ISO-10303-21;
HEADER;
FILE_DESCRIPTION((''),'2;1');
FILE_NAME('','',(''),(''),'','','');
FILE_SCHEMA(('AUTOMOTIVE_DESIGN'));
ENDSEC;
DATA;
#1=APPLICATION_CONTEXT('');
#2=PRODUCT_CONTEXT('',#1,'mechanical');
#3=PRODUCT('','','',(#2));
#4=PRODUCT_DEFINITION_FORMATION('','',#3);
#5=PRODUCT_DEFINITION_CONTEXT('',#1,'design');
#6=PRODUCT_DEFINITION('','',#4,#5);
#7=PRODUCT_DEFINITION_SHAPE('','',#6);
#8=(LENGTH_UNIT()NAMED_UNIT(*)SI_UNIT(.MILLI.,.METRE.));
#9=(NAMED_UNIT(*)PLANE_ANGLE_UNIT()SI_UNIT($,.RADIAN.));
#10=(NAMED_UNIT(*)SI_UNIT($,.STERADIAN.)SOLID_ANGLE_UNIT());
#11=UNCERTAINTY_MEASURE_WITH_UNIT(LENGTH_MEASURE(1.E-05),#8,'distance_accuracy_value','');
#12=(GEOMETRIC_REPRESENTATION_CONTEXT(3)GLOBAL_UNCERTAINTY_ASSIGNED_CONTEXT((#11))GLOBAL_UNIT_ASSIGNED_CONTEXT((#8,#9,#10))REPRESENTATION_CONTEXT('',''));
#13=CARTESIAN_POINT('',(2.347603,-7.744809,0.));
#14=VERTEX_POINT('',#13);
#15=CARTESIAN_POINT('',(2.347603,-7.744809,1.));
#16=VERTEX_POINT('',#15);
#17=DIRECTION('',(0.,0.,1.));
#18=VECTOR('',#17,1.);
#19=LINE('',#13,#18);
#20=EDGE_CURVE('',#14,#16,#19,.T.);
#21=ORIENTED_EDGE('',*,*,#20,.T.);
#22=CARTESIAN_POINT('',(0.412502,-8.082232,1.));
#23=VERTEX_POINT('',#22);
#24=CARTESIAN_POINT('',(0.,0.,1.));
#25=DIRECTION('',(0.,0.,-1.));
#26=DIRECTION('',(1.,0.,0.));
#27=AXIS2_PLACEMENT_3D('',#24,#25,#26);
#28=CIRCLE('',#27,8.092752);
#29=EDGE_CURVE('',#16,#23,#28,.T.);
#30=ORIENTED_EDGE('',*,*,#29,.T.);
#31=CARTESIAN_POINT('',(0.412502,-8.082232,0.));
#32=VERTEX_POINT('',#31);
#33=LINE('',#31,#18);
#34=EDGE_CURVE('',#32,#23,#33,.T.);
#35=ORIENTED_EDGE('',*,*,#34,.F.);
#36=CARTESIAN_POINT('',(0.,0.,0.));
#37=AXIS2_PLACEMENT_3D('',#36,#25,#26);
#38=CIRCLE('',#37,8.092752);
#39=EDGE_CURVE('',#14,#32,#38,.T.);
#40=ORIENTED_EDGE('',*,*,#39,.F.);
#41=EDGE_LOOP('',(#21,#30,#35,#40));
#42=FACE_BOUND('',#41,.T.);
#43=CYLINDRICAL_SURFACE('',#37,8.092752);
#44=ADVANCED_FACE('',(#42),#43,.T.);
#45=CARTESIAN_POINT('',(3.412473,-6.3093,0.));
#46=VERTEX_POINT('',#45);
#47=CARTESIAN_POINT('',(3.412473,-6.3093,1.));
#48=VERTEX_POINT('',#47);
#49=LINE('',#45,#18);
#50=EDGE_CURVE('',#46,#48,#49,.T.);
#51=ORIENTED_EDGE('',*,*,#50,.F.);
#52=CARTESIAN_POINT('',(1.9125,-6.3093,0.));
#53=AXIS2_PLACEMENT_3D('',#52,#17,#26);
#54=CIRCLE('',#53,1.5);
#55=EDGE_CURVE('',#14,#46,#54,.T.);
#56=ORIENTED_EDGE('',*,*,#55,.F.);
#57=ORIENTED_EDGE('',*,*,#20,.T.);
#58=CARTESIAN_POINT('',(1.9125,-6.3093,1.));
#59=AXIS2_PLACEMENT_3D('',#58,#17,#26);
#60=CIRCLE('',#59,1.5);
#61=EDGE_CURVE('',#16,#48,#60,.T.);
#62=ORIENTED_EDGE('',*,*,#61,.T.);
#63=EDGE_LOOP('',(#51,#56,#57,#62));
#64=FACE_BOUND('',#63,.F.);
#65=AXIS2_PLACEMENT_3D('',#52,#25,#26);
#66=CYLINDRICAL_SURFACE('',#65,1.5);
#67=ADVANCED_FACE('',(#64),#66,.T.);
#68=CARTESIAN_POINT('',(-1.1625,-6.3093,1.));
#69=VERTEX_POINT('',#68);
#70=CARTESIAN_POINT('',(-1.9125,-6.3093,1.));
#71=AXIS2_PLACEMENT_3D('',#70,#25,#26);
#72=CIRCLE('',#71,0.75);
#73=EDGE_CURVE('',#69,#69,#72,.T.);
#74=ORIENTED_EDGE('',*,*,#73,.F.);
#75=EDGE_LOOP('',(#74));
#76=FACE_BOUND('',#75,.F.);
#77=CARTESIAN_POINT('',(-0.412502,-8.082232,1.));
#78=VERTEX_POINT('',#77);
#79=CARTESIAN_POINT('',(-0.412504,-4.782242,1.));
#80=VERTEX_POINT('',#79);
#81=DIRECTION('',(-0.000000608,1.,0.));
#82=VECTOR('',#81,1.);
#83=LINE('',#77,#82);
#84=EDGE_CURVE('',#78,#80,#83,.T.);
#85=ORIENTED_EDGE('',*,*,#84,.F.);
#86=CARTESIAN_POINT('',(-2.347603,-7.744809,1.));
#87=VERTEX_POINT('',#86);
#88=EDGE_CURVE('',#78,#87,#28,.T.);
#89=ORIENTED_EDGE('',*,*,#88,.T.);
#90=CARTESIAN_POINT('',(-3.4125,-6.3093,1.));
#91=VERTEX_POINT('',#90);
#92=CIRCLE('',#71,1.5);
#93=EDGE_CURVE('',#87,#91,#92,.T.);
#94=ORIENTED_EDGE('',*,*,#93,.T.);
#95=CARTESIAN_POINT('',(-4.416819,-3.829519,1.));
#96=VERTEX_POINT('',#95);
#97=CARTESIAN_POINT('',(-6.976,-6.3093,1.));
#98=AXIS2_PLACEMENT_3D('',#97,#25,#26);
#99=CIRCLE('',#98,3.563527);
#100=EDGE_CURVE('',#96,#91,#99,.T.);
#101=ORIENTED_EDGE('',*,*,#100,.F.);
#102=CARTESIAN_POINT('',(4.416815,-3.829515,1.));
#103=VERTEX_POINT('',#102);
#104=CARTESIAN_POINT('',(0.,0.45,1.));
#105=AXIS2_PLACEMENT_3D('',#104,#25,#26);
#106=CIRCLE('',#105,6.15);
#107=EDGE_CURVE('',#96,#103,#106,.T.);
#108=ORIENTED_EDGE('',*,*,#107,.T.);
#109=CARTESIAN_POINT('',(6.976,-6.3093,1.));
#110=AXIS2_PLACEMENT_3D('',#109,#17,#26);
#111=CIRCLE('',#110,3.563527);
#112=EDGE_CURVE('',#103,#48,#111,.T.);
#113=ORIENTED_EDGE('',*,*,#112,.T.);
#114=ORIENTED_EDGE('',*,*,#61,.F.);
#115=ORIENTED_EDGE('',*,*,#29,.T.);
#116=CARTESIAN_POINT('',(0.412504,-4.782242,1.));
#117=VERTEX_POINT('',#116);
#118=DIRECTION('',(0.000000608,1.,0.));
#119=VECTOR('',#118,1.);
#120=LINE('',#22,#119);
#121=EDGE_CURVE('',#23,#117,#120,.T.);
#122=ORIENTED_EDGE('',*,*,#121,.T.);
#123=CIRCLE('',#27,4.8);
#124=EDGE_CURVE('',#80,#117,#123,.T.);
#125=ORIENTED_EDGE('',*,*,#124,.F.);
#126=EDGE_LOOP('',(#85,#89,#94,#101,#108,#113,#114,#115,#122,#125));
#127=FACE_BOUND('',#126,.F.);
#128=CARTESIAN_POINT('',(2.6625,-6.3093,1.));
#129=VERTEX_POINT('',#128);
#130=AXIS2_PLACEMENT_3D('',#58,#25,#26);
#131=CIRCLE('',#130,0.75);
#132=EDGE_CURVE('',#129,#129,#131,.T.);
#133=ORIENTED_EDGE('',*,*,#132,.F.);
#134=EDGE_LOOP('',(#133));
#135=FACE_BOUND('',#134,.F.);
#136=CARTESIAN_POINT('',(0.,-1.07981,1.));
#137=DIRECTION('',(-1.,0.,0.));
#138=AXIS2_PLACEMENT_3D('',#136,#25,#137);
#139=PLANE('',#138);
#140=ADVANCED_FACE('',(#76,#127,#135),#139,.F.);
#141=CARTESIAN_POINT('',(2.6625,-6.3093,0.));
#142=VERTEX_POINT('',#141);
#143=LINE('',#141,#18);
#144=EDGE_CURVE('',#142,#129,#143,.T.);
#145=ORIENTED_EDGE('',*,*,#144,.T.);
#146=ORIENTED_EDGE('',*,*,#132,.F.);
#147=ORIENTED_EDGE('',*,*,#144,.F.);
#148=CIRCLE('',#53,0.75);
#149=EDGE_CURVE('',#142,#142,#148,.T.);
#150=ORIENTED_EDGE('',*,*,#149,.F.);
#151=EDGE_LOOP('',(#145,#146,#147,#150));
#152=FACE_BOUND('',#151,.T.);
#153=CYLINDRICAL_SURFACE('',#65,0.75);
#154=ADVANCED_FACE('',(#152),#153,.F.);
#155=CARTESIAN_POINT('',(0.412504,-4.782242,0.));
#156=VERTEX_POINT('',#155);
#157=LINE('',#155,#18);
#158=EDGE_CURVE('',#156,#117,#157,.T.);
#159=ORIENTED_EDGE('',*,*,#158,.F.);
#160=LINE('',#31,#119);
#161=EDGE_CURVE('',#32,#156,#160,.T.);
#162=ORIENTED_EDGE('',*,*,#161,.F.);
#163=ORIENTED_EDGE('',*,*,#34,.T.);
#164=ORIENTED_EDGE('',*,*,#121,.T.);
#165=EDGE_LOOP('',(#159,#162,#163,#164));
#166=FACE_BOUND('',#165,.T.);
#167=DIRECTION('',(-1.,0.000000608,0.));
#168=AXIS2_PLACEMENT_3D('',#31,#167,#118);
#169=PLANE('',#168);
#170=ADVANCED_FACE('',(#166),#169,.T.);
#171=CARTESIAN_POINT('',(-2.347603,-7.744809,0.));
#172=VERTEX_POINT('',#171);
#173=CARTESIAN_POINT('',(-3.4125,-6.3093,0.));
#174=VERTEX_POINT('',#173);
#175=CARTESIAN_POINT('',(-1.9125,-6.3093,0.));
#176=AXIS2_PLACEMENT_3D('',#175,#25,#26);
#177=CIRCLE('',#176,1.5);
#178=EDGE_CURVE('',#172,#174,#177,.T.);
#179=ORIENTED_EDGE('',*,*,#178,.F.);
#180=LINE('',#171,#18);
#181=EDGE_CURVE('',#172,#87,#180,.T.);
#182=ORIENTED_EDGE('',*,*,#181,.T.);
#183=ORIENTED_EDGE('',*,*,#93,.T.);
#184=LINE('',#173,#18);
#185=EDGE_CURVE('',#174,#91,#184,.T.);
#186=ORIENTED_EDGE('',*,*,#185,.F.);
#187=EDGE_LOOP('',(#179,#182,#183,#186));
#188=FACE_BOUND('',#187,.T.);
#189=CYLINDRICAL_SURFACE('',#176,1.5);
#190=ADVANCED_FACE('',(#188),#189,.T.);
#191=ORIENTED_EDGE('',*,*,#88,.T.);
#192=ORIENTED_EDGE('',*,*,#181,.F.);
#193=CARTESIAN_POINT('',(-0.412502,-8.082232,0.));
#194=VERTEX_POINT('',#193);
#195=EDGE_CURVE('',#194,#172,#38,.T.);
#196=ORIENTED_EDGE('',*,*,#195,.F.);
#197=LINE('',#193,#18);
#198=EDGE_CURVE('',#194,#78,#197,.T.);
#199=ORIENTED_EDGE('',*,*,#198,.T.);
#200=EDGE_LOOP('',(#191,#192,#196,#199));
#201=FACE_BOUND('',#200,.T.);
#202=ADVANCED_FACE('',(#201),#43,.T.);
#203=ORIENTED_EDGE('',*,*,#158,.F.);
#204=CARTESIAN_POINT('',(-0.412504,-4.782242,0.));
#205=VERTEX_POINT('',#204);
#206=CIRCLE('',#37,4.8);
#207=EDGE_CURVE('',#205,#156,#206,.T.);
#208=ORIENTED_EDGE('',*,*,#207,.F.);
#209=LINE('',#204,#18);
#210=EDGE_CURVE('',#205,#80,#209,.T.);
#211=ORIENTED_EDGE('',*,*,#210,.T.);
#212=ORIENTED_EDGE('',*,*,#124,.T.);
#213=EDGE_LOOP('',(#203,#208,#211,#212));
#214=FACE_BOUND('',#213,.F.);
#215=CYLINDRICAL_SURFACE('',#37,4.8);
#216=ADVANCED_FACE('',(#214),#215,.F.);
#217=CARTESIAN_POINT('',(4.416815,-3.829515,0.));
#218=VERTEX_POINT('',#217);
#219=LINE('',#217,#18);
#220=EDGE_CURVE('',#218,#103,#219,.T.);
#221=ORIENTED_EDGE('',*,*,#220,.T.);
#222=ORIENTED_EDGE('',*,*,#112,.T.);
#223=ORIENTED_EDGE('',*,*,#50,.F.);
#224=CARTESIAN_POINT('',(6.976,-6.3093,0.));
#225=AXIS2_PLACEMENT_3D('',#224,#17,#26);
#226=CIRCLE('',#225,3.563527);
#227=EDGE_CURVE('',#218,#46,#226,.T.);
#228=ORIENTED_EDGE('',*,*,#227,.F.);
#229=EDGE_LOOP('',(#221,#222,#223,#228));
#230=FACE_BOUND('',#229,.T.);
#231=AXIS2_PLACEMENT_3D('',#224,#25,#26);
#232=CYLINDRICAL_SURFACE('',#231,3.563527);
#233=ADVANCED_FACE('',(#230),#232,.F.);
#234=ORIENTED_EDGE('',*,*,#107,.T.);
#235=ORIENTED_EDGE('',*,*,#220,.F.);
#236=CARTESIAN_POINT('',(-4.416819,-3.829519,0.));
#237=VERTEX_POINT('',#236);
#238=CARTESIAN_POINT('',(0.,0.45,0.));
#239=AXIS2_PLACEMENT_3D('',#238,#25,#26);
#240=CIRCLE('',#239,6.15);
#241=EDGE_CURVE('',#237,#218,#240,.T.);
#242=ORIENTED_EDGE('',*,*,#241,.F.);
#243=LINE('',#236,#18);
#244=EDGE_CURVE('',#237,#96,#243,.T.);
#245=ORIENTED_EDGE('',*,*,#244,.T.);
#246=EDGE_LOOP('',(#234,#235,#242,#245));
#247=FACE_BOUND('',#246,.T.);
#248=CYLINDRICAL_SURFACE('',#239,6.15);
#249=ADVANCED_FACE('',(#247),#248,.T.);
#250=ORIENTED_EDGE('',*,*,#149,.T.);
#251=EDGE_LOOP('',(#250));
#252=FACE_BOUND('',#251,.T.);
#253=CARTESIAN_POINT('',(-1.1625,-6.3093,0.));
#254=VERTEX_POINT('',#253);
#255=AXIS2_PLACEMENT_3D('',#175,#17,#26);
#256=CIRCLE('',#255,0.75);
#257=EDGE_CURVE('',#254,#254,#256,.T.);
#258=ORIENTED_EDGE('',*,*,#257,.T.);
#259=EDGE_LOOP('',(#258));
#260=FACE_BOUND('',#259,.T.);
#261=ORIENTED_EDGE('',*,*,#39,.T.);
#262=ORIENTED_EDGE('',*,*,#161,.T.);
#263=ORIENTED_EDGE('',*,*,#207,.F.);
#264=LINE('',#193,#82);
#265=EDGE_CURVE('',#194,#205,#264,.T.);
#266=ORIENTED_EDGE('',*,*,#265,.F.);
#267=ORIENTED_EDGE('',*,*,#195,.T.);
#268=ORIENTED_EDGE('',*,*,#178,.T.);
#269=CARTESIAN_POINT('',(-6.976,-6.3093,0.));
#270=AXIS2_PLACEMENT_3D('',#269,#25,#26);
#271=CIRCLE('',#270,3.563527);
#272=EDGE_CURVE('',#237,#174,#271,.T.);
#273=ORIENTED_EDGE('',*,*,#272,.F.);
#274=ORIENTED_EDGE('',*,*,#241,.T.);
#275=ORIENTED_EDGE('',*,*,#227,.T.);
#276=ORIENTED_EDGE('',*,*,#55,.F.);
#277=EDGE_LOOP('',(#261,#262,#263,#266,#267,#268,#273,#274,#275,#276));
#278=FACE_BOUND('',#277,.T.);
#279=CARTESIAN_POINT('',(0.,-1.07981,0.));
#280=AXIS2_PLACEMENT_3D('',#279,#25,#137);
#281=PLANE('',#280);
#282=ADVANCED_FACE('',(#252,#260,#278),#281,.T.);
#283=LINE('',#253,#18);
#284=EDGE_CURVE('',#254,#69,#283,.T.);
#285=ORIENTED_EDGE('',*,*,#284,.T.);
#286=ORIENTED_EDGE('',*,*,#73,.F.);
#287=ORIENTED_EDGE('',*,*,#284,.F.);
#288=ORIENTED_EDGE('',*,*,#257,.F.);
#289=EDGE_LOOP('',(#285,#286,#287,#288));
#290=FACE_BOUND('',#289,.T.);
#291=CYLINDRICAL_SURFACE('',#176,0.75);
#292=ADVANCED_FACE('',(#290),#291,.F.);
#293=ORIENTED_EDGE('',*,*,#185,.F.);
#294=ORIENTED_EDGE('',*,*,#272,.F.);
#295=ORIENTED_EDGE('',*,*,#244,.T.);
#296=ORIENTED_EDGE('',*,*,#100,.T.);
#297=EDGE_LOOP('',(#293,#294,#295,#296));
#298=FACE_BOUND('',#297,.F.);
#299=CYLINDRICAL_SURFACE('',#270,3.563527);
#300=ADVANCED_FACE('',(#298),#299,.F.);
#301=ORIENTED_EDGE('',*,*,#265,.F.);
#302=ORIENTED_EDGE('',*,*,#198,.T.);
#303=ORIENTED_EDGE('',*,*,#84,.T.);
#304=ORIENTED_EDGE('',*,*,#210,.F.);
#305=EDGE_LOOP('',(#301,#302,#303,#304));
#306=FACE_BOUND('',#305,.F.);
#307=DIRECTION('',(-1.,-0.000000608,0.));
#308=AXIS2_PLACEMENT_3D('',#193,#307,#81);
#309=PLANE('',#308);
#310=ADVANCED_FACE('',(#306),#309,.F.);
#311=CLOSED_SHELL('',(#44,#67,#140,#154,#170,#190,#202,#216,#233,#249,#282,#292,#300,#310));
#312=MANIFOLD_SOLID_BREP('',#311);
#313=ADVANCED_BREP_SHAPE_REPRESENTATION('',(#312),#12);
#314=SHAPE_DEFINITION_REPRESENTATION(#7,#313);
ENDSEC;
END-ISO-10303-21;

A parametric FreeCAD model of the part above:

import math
import FreeCAD as App
import Part
import Sketcher

V = App.Vector

doc = App.newDocument("Part")
body = doc.addObject("PartDesign::Body", "Body")

# Sketch on XY plane
sketch1 = doc.addObject("Sketcher::SketchObject", "Sketch")
body.addObject(sketch1)
sketch1.AttachmentSupport = (doc.XY_Plane, [""])
sketch1.MapMode = "FlatFace"
sketch1.addGeometry([
    Part.ArcOfCircle(Part.Circle(V(-1.9125, -6.3093, 0), V(0, 0, 1), 1.499991), math.radians(180), math.radians(253.137946)),  # 0
    Part.ArcOfCircle(Part.Circle(V(0.000486, 0.004328, 0), V(0, 0, 1), 8.097067), math.radians(-106.857487), math.radians(-92.923605)),  # 1
    Part.LineSegment(V(-0.4125, -8.0822, 0), V(-0.4125, -4.7822, 0)),  # 2
    Part.ArcOfCircle(Part.Circle(V(0, 0, 0), V(0, 0, 1), 4.799958), math.radians(-85.070019), math.radians(265.070019)),  # 3
    Part.LineSegment(V(0.4125, -4.7822, 0), V(0.4125, -8.0822, 0)),  # 4
    Part.ArcOfCircle(Part.Circle(V(0.001007, -0.004233, 0), V(0, 0, 1), 8.088441), math.radians(-87.083862), math.radians(-73.135046)),  # 5
    Part.ArcOfCircle(Part.Circle(V(1.9125, -6.3093, 0), V(0, 0, 1), 1.499991), math.radians(-73.137946), math.radians(0)),  # 6
    Part.ArcOfCircle(Part.Circle(V(6.976, -6.3093, 0), V(0, 0, 1), 3.563553), math.radians(135.90274), math.radians(180)),  # 7
    Part.ArcOfCircle(Part.Circle(V(0, 0.45, 0), V(0, 0, 1), 6.149979), math.radians(-44.095471), math.radians(224.095471)),  # 8
    Part.ArcOfCircle(Part.Circle(V(-6.976, -6.3093, 0), V(0, 0, 1), 3.563553), math.radians(0), math.radians(44.09726)),  # 9
], False)
sketch1.addConstraint([
    Sketcher.Constraint("Coincident", 0, 2, 1, 1),
    Sketcher.Constraint("Coincident", 1, 2, 2, 1),
    Sketcher.Constraint("Coincident", 2, 2, 3, 2),
    Sketcher.Constraint("Coincident", 3, 1, 4, 1),
    Sketcher.Constraint("Coincident", 4, 2, 5, 1),
    Sketcher.Constraint("Coincident", 5, 2, 6, 1),
    Sketcher.Constraint("Coincident", 6, 2, 7, 2),
    Sketcher.Constraint("Coincident", 7, 1, 8, 1),
    Sketcher.Constraint("Coincident", 8, 2, 9, 2),
    Sketcher.Constraint("Coincident", 9, 1, 0, 1),
    Sketcher.Constraint("Vertical", 2),
    Sketcher.Constraint("Vertical", 4),
    Sketcher.Constraint("Coincident", 3, 3, -1, 1),
    Sketcher.Constraint("PointOnObject", 8, 3, -2),
    Sketcher.Constraint("Radius", 0, 1.5),
    Sketcher.Constraint("Radius", 3, 4.8),
    Sketcher.Constraint("Radius", 6, 1.5),
    Sketcher.Constraint("Radius", 8, 6.15),
    Sketcher.Constraint("DistanceY", 2, 1, 2, 2, 3.3),
    Sketcher.Constraint("DistanceY", 4, 2, 4, 1, 3.3),
    Sketcher.Constraint("Radius", 1, 8.097),
    Sketcher.Constraint("DistanceX", 3, 1, 6, 2, 3.0),
    Sketcher.Constraint("DistanceX", 9, 1, 2, 2, 3.0),
    Sketcher.Constraint("Radius", 5, 8.0884),
    Sketcher.Constraint("Radius", 7, 3.5636),
    Sketcher.Constraint("Radius", 9, 3.5636),
    Sketcher.Constraint("DistanceY", 1, 2, 3, 1, 3.3),
    Sketcher.Constraint("DistanceY", -1, 1, 8, 3, 0.45),
    Sketcher.Constraint("DistanceX", 0, 2, 6, 3, 4.26),
    Sketcher.Constraint("DistanceX", 1, 2, 5, 2, 2.76),
    Sketcher.Constraint("DistanceX", -1, 1, 5, 3, 0.001),
    Sketcher.Constraint("DistanceX", -1, 1, 7, 3, 6.976),
    Sketcher.Constraint("DistanceX", 0, 3, 1, 3, 1.913),
    Sketcher.Constraint("DistanceY", 6, 2, 3, 1, 1.527),
    Sketcher.Constraint("DistanceY", 9, 1, 2, 2, 1.527),
    Sketcher.Constraint("DistanceX", -1, 1, 7, 1, 4.4168),
    Sketcher.Constraint("DistanceX", 8, 2, -1, 1, 4.4168),
])
pad1 = doc.addObject("PartDesign::Pad", "Pad")
body.addObject(pad1)
pad1.Profile = sketch1
pad1.Length = 1

# Sketch on XY plane
sketch2 = doc.addObject("Sketcher::SketchObject", "Sketch001")
body.addObject(sketch2)
sketch2.AttachmentSupport = (doc.XY_Plane, [""])
sketch2.MapMode = "FlatFace"
sketch2.addGeometry(Part.Circle(V(-1.9, -6.3, 0), V(0, 0, 1), 0.8), False)
sketch2.addConstraint([
    Sketcher.Constraint("Diameter", 0, 1.5),
    Sketcher.Constraint("DistanceX", 0, 3, -1, 1, 1.9125),
    Sketcher.Constraint("DistanceY", 0, 3, -1, 1, 6.3093),
])
pocket1 = doc.addObject("PartDesign::Pocket", "Pocket")
body.addObject(pocket1)
pocket1.Profile = sketch2
pocket1.Type = "ThroughAll"
pocket1.Reversed = True

# Sketch on XY plane
sketch3 = doc.addObject("Sketcher::SketchObject", "Sketch002")
body.addObject(sketch3)
sketch3.AttachmentSupport = (doc.XY_Plane, [""])
sketch3.MapMode = "FlatFace"
sketch3.addGeometry(Part.Circle(V(1.9, -6.3, 0), V(0, 0, 1), 0.8), False)
sketch3.addConstraint([
    Sketcher.Constraint("Diameter", 0, 1.5),
    Sketcher.Constraint("DistanceX", -1, 1, 0, 3, 1.9125),
    Sketcher.Constraint("DistanceY", 0, 3, -1, 1, 6.3093),
])
pocket2 = doc.addObject("PartDesign::Pocket", "Pocket001")
body.addObject(pocket2)
pocket2.Profile = sketch3
pocket2.Type = "ThroughAll"
pocket2.Reversed = True

doc.recompute()
